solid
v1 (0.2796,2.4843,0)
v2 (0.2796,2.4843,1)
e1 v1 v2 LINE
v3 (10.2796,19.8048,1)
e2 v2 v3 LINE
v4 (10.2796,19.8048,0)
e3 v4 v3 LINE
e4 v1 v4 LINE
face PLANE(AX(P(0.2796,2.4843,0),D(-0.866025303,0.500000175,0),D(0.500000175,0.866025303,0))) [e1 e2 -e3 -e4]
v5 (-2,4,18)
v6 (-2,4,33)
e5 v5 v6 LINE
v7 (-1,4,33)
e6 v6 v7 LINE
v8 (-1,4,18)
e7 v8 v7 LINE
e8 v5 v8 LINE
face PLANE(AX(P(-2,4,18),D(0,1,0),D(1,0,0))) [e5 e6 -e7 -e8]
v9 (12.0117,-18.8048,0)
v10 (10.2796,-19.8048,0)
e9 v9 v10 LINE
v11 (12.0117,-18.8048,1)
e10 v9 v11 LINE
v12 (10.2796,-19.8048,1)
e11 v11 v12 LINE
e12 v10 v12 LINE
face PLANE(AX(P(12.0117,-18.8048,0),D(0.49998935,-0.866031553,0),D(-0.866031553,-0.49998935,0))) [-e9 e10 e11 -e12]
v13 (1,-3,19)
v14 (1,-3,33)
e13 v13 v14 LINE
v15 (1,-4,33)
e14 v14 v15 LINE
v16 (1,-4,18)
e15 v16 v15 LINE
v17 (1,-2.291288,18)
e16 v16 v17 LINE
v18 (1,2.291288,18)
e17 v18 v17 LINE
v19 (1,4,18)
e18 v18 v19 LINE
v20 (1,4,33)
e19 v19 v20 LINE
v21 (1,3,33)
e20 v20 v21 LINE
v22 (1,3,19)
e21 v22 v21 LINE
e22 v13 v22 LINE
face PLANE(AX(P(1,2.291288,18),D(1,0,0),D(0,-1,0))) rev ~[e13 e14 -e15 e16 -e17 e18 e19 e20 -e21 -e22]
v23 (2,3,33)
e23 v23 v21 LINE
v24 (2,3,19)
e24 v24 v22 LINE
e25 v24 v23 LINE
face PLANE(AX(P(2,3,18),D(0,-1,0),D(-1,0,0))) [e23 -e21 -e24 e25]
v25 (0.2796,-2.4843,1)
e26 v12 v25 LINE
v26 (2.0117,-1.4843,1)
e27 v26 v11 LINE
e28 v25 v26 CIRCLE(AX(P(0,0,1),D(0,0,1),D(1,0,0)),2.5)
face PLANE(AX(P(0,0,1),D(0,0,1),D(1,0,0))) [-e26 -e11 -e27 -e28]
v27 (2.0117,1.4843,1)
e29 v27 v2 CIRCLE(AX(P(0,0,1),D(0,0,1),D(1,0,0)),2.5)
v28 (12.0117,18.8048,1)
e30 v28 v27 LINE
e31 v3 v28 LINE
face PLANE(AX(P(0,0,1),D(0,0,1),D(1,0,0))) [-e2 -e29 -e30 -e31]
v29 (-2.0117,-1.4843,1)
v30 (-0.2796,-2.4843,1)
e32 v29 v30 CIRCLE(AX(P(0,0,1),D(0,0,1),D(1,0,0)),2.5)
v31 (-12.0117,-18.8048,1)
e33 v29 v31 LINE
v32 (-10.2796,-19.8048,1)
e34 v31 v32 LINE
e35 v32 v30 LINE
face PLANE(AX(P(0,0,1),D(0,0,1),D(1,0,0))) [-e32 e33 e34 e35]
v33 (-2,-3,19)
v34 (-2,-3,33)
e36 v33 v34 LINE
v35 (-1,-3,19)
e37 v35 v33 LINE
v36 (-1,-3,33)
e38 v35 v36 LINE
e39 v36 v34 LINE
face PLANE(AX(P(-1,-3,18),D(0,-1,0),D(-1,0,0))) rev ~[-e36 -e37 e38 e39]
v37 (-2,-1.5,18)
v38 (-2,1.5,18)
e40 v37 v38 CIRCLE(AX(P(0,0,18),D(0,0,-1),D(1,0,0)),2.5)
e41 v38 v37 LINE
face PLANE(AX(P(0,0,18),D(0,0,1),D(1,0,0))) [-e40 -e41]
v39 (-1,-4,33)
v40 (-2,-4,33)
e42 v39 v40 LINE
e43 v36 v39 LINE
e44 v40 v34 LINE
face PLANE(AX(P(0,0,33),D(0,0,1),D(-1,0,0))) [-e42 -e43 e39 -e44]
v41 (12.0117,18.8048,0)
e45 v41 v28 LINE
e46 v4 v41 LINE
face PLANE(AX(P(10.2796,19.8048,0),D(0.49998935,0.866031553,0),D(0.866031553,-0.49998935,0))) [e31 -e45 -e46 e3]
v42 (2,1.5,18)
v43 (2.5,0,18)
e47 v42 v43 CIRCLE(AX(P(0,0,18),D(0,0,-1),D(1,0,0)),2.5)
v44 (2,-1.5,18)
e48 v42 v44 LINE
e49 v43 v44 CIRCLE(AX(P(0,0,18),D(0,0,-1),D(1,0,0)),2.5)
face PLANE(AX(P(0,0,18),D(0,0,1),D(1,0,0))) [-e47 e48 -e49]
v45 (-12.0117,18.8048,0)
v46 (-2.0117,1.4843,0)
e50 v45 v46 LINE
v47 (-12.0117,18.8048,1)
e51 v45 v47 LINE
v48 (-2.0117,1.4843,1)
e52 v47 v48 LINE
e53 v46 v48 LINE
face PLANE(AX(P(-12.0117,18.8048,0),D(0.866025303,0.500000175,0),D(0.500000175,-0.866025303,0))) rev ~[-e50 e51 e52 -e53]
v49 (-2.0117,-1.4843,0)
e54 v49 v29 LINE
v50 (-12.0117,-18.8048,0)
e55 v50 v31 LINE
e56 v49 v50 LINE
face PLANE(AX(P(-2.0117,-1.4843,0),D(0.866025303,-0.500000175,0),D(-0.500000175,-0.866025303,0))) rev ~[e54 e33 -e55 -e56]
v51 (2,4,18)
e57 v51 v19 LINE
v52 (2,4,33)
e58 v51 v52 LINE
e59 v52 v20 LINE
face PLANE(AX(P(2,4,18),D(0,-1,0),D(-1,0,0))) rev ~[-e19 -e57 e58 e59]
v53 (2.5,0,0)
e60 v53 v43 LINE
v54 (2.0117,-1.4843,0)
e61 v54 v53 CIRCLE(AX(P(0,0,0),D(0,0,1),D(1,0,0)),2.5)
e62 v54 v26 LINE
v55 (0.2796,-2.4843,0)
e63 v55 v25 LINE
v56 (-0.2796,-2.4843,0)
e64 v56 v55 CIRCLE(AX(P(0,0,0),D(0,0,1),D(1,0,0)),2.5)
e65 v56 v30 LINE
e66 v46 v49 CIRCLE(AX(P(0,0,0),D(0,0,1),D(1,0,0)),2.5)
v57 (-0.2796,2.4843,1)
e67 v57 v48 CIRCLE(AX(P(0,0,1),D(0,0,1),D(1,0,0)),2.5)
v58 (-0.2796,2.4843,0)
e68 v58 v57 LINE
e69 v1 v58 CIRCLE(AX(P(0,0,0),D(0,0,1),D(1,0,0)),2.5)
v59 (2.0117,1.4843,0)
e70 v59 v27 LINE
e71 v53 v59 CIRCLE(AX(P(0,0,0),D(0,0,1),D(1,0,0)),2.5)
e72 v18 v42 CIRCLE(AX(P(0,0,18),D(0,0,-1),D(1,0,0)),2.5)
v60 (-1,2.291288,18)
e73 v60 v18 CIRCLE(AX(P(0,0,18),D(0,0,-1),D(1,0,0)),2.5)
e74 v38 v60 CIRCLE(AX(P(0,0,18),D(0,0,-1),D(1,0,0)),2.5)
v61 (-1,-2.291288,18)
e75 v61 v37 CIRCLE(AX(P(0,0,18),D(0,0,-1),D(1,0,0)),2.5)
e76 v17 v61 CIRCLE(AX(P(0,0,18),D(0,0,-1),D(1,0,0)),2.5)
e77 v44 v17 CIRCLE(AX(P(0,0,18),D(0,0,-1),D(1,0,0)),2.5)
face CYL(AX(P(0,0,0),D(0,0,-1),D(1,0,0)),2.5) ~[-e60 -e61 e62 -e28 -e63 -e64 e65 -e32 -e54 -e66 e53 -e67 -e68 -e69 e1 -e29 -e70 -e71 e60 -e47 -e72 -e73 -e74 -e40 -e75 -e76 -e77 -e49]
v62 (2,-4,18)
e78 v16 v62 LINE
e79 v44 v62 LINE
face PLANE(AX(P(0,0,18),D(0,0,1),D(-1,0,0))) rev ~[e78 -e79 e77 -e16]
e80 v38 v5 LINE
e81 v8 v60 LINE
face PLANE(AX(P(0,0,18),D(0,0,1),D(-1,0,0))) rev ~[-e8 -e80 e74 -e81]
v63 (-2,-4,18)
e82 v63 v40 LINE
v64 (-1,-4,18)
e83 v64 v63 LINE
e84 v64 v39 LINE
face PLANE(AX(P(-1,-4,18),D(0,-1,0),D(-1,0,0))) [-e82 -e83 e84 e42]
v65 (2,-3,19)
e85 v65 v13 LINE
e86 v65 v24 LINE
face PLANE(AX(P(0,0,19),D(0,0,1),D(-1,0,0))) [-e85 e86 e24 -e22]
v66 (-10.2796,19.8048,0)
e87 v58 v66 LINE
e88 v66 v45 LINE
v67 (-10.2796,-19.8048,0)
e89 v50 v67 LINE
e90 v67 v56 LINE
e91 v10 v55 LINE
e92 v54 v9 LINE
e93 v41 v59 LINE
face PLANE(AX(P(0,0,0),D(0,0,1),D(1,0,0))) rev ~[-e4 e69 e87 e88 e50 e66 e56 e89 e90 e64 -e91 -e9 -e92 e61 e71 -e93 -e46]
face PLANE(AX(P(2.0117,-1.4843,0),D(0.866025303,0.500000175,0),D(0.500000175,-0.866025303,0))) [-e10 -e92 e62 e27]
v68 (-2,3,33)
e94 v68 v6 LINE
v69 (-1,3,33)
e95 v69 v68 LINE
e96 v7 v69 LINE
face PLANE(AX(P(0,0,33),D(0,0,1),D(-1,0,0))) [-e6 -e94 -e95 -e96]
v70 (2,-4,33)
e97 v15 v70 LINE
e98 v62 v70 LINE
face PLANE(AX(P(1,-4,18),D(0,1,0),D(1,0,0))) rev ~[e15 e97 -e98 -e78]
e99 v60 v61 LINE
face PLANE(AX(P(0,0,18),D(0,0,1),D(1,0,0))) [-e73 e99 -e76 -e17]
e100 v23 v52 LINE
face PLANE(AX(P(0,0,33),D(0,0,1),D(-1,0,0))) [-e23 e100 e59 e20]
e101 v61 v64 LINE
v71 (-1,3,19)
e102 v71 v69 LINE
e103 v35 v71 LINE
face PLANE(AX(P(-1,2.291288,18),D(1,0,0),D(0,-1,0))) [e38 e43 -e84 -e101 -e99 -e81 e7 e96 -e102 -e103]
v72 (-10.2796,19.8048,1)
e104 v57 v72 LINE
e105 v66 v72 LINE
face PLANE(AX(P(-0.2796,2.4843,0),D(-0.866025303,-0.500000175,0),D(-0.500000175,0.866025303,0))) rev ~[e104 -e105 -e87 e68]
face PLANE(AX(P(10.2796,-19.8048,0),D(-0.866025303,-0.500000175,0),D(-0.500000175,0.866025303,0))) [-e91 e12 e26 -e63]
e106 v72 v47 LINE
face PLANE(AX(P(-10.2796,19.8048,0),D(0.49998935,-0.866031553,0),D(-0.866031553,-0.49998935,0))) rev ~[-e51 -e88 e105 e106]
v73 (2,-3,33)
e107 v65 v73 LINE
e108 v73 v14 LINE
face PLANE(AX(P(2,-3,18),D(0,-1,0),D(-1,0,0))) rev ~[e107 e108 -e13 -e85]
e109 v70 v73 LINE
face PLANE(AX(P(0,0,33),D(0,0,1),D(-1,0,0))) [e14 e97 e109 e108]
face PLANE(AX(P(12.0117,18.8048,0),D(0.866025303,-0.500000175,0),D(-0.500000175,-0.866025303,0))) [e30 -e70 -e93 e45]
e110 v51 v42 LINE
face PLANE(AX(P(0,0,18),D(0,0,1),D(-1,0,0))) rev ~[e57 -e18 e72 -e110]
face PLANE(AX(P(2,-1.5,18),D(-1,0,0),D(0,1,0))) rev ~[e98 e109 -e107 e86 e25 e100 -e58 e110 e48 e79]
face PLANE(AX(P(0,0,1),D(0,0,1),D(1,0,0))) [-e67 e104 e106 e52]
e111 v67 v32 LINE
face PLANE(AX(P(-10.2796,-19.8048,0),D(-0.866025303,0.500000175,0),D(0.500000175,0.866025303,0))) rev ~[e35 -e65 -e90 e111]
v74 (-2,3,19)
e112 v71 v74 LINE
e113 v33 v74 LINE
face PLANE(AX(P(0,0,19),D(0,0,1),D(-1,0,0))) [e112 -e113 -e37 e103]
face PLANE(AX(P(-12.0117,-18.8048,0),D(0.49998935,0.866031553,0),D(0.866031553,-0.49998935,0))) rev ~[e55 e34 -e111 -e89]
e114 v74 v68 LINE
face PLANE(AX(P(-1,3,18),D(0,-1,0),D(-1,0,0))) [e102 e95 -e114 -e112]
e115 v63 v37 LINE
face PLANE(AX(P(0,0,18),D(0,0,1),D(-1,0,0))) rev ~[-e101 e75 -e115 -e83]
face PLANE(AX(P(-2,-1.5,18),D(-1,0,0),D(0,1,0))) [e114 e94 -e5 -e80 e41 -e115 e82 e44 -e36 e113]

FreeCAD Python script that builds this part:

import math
import FreeCAD as App
import Part
import Sketcher
Q = App.Units.Quantity

doc = App.newDocument("Part")
body = doc.addObject("PartDesign::Body", "Body")
body.AllowCompound = True

sketch1 = body.newObject("Sketcher::SketchObject", "Sketch")
sketch1.AttachmentSupport = (doc.getObject("XY_Plane"), [""])
sketch1.MapMode = "FlatFace"
sketch1.addGeometry(Part.ArcOfCircle(Part.Circle(App.Vector(0, 0, 0), App.Vector(0, 0, 1), 2.5), math.radians(36.421156), math.radians(83.578566)), False)
sketch1.addGeometry(Part.LineSegment(App.Vector(2.0117, 1.4843, 0), App.Vector(12.0117, 18.8048, 0)), False)
sketch1.addGeometry(Part.LineSegment(App.Vector(12.0117, 18.8048, 0), App.Vector(10.2796, 19.8048, 0)), False)
sketch1.addGeometry(Part.LineSegment(App.Vector(10.2796, 19.8048, 0), App.Vector(0.2796, 2.4843, 0)), False)
sketch1.addGeometry(Part.LineSegment(App.Vector(12.0117, -18.8048, 0), App.Vector(2.0117, -1.4843, 0)), False)
sketch1.addGeometry(Part.ArcOfCircle(Part.Circle(App.Vector(0, 0, 0), App.Vector(0, 0, 1), 2.5), math.radians(-83.578566), math.radians(-36.421156)), False)
sketch1.addGeometry(Part.LineSegment(App.Vector(0.2796, -2.4843, 0), App.Vector(10.2796, -19.8048, 0)), False)
sketch1.addGeometry(Part.LineSegment(App.Vector(10.2796, -19.8048, 0), App.Vector(12.0117, -18.8048, 0)), False)
sketch1.addGeometry(Part.ArcOfCircle(Part.Circle(App.Vector(0, 0, 0), App.Vector(0, 0, 1), 2.5), math.radians(96.421434), math.radians(143.578844)), False)
sketch1.addGeometry(Part.LineSegment(App.Vector(-0.2796, 2.4843, 0), App.Vector(-10.2796, 19.8048, 0)), False)
sketch1.addGeometry(Part.LineSegment(App.Vector(-10.2796, 19.8048, 0), App.Vector(-12.0117, 18.8048, 0)), False)
sketch1.addGeometry(Part.LineSegment(App.Vector(-12.0117, 18.8048, 0), App.Vector(-2.0117, 1.4843, 0)), False)
sketch1.addGeometry(Part.LineSegment(App.Vector(-10.2796, -19.8048, 0), App.Vector(-0.2796, -2.4843, 0)), False)
sketch1.addGeometry(Part.ArcOfCircle(Part.Circle(App.Vector(0, 0, 0), App.Vector(0, 0, 1), 2.5), math.radians(-143.578844), math.radians(-96.421434)), False)
sketch1.addGeometry(Part.LineSegment(App.Vector(-2.0117, -1.4843, 0), App.Vector(-12.0117, -18.8048, 0)), False)
sketch1.addGeometry(Part.LineSegment(App.Vector(-12.0117, -18.8048, 0), App.Vector(-10.2796, -19.8048, 0)), False)
sketch1.addConstraint(Sketcher.Constraint("Coincident", 0, 1, 1, 1))
sketch1.addConstraint(Sketcher.Constraint("Coincident", 1, 2, 2, 1))
sketch1.addConstraint(Sketcher.Constraint("Coincident", 2, 2, 3, 1))
sketch1.addConstraint(Sketcher.Constraint("Coincident", 3, 2, 0, 2))
sketch1.addConstraint(Sketcher.Constraint("Coincident", 4, 2, 5, 2))
sketch1.addConstraint(Sketcher.Constraint("Coincident", 5, 1, 6, 1))
sketch1.addConstraint(Sketcher.Constraint("Coincident", 6, 2, 7, 1))
sketch1.addConstraint(Sketcher.Constraint("Coincident", 7, 2, 4, 1))
sketch1.addConstraint(Sketcher.Constraint("Coincident", 8, 1, 9, 1))
sketch1.addConstraint(Sketcher.Constraint("Coincident", 9, 2, 10, 1))
sketch1.addConstraint(Sketcher.Constraint("Coincident", 10, 2, 11, 1))
sketch1.addConstraint(Sketcher.Constraint("Coincident", 11, 2, 8, 2))
sketch1.addConstraint(Sketcher.Constraint("Coincident", 12, 2, 13, 2))
sketch1.addConstraint(Sketcher.Constraint("Coincident", 13, 1, 14, 1))
sketch1.addConstraint(Sketcher.Constraint("Coincident", 14, 2, 15, 1))
sketch1.addConstraint(Sketcher.Constraint("Coincident", 15, 2, 12, 1))
sketch1.addConstraint(Sketcher.Constraint("Coincident", 0, 3, -1, 1))
sketch1.addConstraint(Sketcher.Constraint("Coincident", 5, 3, -1, 1))
sketch1.addConstraint(Sketcher.Constraint("Coincident", 8, 3, -1, 1))
sketch1.addConstraint(Sketcher.Constraint("Coincident", 13, 3, -1, 1))
sketch1.addConstraint(Sketcher.Constraint("Equal", 0, 5))
sketch1.addConstraint(Sketcher.Constraint("Equal", 5, 8))
sketch1.addConstraint(Sketcher.Constraint("Equal", 8, 13))
sketch1.addConstraint(Sketcher.Constraint("Symmetric", 6, 2, 9, 2, -1, 1))
sketch1.addConstraint(Sketcher.Constraint("Symmetric", 7, 2, 10, 2, -1, 1))
sketch1.addConstraint(Sketcher.Constraint("Symmetric", 1, 2, 14, 2, -1, 1))
sketch1.addConstraint(Sketcher.Constraint("Symmetric", 2, 2, 15, 2, -1, 1))
sketch1.addConstraint(Sketcher.Constraint("Symmetric", 2, 2, 9, 2, -2))
sketch1.addConstraint(Sketcher.Constraint("Symmetric", 1, 2, 10, 2, -2))
sketch1.addConstraint(Sketcher.Constraint("Perpendicular", 1, 2))
sketch1.addConstraint(Sketcher.Constraint("Perpendicular", 2, 3))
sketch1.addConstraint(Sketcher.Constraint("Parallel", 4, 6))
sketch1.addConstraint(Sketcher.Constraint("Perpendicular", 6, 7))
sketch1.addConstraint(Sketcher.Constraint("Perpendicular", 7, 9))
sketch1.addConstraint(Sketcher.Constraint("Perpendicular", 10, 11))
sketch1.addConstraint(Sketcher.Constraint("Parallel", 3, 12))
sketch1.addConstraint(Sketcher.Constraint("Parallel", 12, 14))
sketch1.addConstraint(Sketcher.Constraint("Equal", 1, 3))
sketch1.addConstraint(Sketcher.Constraint("Radius", 0, 2.5))
sketch1.addConstraint(Sketcher.Constraint("Angle", 1, Q("60 deg")))
sketch1.addConstraint(Sketcher.Constraint("Distance", 1, 20.0))
sketch1.addConstraint(Sketcher.Constraint("Distance", 2, 2.0))
pad1 = body.newObject("PartDesign::Pad", "Pad")
pad1.Profile = sketch1
pad1.Length = 1

sketch2 = body.newObject("Sketcher::SketchObject", "Sketch001")
sketch2.AttachmentSupport = (doc.getObject("XY_Plane"), [""])
sketch2.MapMode = "FlatFace"
sketch2.addGeometry(Part.Circle(App.Vector(0, 0, 0), App.Vector(0, 0, 1), 2.5), False)
sketch2.addConstraint(Sketcher.Constraint("Coincident", 0, 3, -1, 1))
sketch2.addConstraint(Sketcher.Constraint("Diameter", 0, 5.0))
pad2 = body.newObject("PartDesign::Pad", "Pad001")
pad2.Profile = sketch2
pad2.Length = 18

sketch3 = body.newObject("Sketcher::SketchObject", "Sketch002")
sketch3.AttachmentSupport = (doc.getObject("XY_Plane"), [""])
sketch3.MapMode = "FlatFace"
sketch3.AttachmentOffset = App.Placement(App.Vector(0, 0, 18), App.Rotation())
sketch3.addGeometry(Part.LineSegment(App.Vector(-2, -3, 0), App.Vector(-1, -3, 0)), False)
sketch3.addGeometry(Part.LineSegment(App.Vector(-1, -3, 0), App.Vector(-1, 3, 0)), False)
sketch3.addGeometry(Part.LineSegment(App.Vector(-1, 3, 0), App.Vector(-2, 3, 0)), False)
sketch3.addGeometry(Part.LineSegment(App.Vector(-2, 3, 0), App.Vector(-2, -3, 0)), False)
sketch3.addGeometry(Part.LineSegment(App.Vector(1, -3, 0), App.Vector(2, -3, 0)), False)
sketch3.addGeometry(Part.LineSegment(App.Vector(2, -3, 0), App.Vector(2, 3, 0)), False)
sketch3.addGeometry(Part.LineSegment(App.Vector(2, 3, 0), App.Vector(1, 3, 0)), False)
sketch3.addGeometry(Part.LineSegment(App.Vector(1, 3, 0), App.Vector(1, -3, 0)), False)
sketch3.addConstraint(Sketcher.Constraint("Coincident", 0, 2, 1, 1))
sketch3.addConstraint(Sketcher.Constraint("Coincident", 1, 2, 2, 1))
sketch3.addConstraint(Sketcher.Constraint("Coincident", 2, 2, 3, 1))
sketch3.addConstraint(Sketcher.Constraint("Coincident", 3, 2, 0, 1))
sketch3.addConstraint(Sketcher.Constraint("Coincident", 4, 2, 5, 1))
sketch3.addConstraint(Sketcher.Constraint("Coincident", 5, 2, 6, 1))
sketch3.addConstraint(Sketcher.Constraint("Coincident", 6, 2, 7, 1))
sketch3.addConstraint(Sketcher.Constraint("Coincident", 7, 2, 4, 1))
sketch3.addConstraint(Sketcher.Constraint("Horizontal", 0))
sketch3.addConstraint(Sketcher.Constraint("Vertical", 1))
sketch3.addConstraint(Sketcher.Constraint("Horizontal", 2))
sketch3.addConstraint(Sketcher.Constraint("Vertical", 3))
sketch3.addConstraint(Sketcher.Constraint("Horizontal", 4))
sketch3.addConstraint(Sketcher.Constraint("Vertical", 5))
sketch3.addConstraint(Sketcher.Constraint("Horizontal", 6))
sketch3.addConstraint(Sketcher.Constraint("Vertical", 7))
sketch3.addConstraint(Sketcher.Constraint("Symmetric", 2, 2, 4, 2, -1, 1))
sketch3.addConstraint(Sketcher.Constraint("Symmetric", 0, 2, 6, 2, -1, 1))
sketch3.addConstraint(Sketcher.Constraint("Horizontal", 3, 2, 4, 2))
sketch3.addConstraint(Sketcher.Constraint("DistanceX", 0, 1, 0, 2, 1.0))
sketch3.addConstraint(Sketcher.Constraint("DistanceX", 0, 2, -1, 1, 1.0))
sketch3.addConstraint(Sketcher.Constraint("DistanceY", 1, 1, 1, 2, 6.0))
pad3 = body.newObject("PartDesign::Pad", "Pad002")
pad3.Profile = sketch3
pad3.Length = 1

sketch4 = body.newObject("Sketcher::SketchObject", "Sketch003")
sketch4.AttachmentSupport = (doc.getObject("XY_Plane"), [""])
sketch4.MapMode = "FlatFace"
sketch4.AttachmentOffset = App.Placement(App.Vector(0, 0, 18), App.Rotation())
sketch4.addGeometry(Part.LineSegment(App.Vector(-1, -3, 0), App.Vector(-2, -3, 0)), False)
sketch4.addGeometry(Part.LineSegment(App.Vector(-2, -3, 0), App.Vector(-2, -4, 0)), False)
sketch4.addGeometry(Part.LineSegment(App.Vector(-2, -4, 0), App.Vector(-1, -4, 0)), False)
sketch4.addGeometry(Part.LineSegment(App.Vector(-1, -4, 0), App.Vector(-1, -3, 0)), False)
sketch4.addGeometry(Part.LineSegment(App.Vector(-2, 4, 0), App.Vector(-2, 3, 0)), False)
sketch4.addGeometry(Part.LineSegment(App.Vector(-2, 3, 0), App.Vector(-1, 3, 0)), False)
sketch4.addGeometry(Part.LineSegment(App.Vector(-1, 3, 0), App.Vector(-1, 4, 0)), False)
sketch4.addGeometry(Part.LineSegment(App.Vector(-1, 4, 0), App.Vector(-2, 4, 0)), False)
sketch4.addGeometry(Part.LineSegment(App.Vector(2, -3, 0), App.Vector(1, -3, 0)), False)
sketch4.addGeometry(Part.LineSegment(App.Vector(1, -3, 0), App.Vector(1, -4, 0)), False)
sketch4.addGeometry(Part.LineSegment(App.Vector(1, -4, 0), App.Vector(2, -4, 0)), False)
sketch4.addGeometry(Part.LineSegment(App.Vector(2, -4, 0), App.Vector(2, -3, 0)), False)
sketch4.addGeometry(Part.LineSegment(App.Vector(1, 4, 0), App.Vector(1, 3, 0)), False)
sketch4.addGeometry(Part.LineSegment(App.Vector(1, 3, 0), App.Vector(2, 3, 0)), False)
sketch4.addGeometry(Part.LineSegment(App.Vector(2, 3, 0), App.Vector(2, 4, 0)), False)
sketch4.addGeometry(Part.LineSegment(App.Vector(2, 4, 0), App.Vector(1, 4, 0)), False)
sketch4.addConstraint(Sketcher.Constraint("Coincident", 0, 2, 1, 1))
sketch4.addConstraint(Sketcher.Constraint("Coincident", 1, 2, 2, 1))
sketch4.addConstraint(Sketcher.Constraint("Coincident", 2, 2, 3, 1))
sketch4.addConstraint(Sketcher.Constraint("Coincident", 3, 2, 0, 1))
sketch4.addConstraint(Sketcher.Constraint("Coincident", 4, 2, 5, 1))
sketch4.addConstraint(Sketcher.Constraint("Coincident", 5, 2, 6, 1))
sketch4.addConstraint(Sketcher.Constraint("Coincident", 6, 2, 7, 1))
sketch4.addConstraint(Sketcher.Constraint("Coincident", 7, 2, 4, 1))
sketch4.addConstraint(Sketcher.Constraint("Coincident", 8, 2, 9, 1))
sketch4.addConstraint(Sketcher.Constraint("Coincident", 9, 2, 10, 1))
sketch4.addConstraint(Sketcher.Constraint("Coincident", 10, 2, 11, 1))
sketch4.addConstraint(Sketcher.Constraint("Coincident", 11, 2, 8, 1))
sketch4.addConstraint(Sketcher.Constraint("Coincident", 12, 2, 13, 1))
sketch4.addConstraint(Sketcher.Constraint("Coincident", 13, 2, 14, 1))
sketch4.addConstraint(Sketcher.Constraint("Coincident", 14, 2, 15, 1))
sketch4.addConstraint(Sketcher.Constraint("Coincident", 15, 2, 12, 1))
sketch4.addConstraint(Sketcher.Constraint("Horizontal", 0))
sketch4.addConstraint(Sketcher.Constraint("Vertical", 1))
sketch4.addConstraint(Sketcher.Constraint("Horizontal", 2))
sketch4.addConstraint(Sketcher.Constraint("Vertical", 3))
sketch4.addConstraint(Sketcher.Constraint("Vertical", 4))
sketch4.addConstraint(Sketcher.Constraint("Horizontal", 5))
sketch4.addConstraint(Sketcher.Constraint("Vertical", 6))
sketch4.addConstraint(Sketcher.Constraint("Horizontal", 7))
sketch4.addConstraint(Sketcher.Constraint("Horizontal", 8))
sketch4.addConstraint(Sketcher.Constraint("Vertical", 9))
sketch4.addConstraint(Sketcher.Constraint("Horizontal", 10))
sketch4.addConstraint(Sketcher.Constraint("Vertical", 11))
sketch4.addConstraint(Sketcher.Constraint("Vertical", 12))
sketch4.addConstraint(Sketcher.Constraint("Horizontal", 13))
sketch4.addConstraint(Sketcher.Constraint("Vertical", 14))
sketch4.addConstraint(Sketcher.Constraint("Horizontal", 15))
sketch4.addConstraint(Sketcher.Constraint("Symmetric", 5, 2, 8, 2, -1, 1))
sketch4.addConstraint(Sketcher.Constraint("Symmetric", 7, 2, 10, 2, -1, 1))
sketch4.addConstraint(Sketcher.Constraint("Symmetric", 3, 2, 12, 2, -1, 1))
sketch4.addConstraint(Sketcher.Constraint("Symmetric", 1, 2, 14, 2, -1, 1))
sketch4.addConstraint(Sketcher.Constraint("Symmetric", 3, 2, 8, 2, -2))
sketch4.addConstraint(Sketcher.Constraint("Symmetric", 1, 2, 10, 2, -2))
sketch4.addConstraint(Sketcher.Constraint("Equal", 15, 1))
sketch4.addConstraint(Sketcher.Constraint("DistanceX", 0, 2, 0, 1, 1.0))
sketch4.addConstraint(Sketcher.Constraint("DistanceX", 0, 2, -1, 1, 2.0))
sketch4.addConstraint(Sketcher.Constraint("DistanceY", 1, 2, -1, 1, 4.0))
pad4 = body.newObject("PartDesign::Pad", "Pad003")
pad4.Profile = sketch4
pad4.Length = 15

doc.recompute()
